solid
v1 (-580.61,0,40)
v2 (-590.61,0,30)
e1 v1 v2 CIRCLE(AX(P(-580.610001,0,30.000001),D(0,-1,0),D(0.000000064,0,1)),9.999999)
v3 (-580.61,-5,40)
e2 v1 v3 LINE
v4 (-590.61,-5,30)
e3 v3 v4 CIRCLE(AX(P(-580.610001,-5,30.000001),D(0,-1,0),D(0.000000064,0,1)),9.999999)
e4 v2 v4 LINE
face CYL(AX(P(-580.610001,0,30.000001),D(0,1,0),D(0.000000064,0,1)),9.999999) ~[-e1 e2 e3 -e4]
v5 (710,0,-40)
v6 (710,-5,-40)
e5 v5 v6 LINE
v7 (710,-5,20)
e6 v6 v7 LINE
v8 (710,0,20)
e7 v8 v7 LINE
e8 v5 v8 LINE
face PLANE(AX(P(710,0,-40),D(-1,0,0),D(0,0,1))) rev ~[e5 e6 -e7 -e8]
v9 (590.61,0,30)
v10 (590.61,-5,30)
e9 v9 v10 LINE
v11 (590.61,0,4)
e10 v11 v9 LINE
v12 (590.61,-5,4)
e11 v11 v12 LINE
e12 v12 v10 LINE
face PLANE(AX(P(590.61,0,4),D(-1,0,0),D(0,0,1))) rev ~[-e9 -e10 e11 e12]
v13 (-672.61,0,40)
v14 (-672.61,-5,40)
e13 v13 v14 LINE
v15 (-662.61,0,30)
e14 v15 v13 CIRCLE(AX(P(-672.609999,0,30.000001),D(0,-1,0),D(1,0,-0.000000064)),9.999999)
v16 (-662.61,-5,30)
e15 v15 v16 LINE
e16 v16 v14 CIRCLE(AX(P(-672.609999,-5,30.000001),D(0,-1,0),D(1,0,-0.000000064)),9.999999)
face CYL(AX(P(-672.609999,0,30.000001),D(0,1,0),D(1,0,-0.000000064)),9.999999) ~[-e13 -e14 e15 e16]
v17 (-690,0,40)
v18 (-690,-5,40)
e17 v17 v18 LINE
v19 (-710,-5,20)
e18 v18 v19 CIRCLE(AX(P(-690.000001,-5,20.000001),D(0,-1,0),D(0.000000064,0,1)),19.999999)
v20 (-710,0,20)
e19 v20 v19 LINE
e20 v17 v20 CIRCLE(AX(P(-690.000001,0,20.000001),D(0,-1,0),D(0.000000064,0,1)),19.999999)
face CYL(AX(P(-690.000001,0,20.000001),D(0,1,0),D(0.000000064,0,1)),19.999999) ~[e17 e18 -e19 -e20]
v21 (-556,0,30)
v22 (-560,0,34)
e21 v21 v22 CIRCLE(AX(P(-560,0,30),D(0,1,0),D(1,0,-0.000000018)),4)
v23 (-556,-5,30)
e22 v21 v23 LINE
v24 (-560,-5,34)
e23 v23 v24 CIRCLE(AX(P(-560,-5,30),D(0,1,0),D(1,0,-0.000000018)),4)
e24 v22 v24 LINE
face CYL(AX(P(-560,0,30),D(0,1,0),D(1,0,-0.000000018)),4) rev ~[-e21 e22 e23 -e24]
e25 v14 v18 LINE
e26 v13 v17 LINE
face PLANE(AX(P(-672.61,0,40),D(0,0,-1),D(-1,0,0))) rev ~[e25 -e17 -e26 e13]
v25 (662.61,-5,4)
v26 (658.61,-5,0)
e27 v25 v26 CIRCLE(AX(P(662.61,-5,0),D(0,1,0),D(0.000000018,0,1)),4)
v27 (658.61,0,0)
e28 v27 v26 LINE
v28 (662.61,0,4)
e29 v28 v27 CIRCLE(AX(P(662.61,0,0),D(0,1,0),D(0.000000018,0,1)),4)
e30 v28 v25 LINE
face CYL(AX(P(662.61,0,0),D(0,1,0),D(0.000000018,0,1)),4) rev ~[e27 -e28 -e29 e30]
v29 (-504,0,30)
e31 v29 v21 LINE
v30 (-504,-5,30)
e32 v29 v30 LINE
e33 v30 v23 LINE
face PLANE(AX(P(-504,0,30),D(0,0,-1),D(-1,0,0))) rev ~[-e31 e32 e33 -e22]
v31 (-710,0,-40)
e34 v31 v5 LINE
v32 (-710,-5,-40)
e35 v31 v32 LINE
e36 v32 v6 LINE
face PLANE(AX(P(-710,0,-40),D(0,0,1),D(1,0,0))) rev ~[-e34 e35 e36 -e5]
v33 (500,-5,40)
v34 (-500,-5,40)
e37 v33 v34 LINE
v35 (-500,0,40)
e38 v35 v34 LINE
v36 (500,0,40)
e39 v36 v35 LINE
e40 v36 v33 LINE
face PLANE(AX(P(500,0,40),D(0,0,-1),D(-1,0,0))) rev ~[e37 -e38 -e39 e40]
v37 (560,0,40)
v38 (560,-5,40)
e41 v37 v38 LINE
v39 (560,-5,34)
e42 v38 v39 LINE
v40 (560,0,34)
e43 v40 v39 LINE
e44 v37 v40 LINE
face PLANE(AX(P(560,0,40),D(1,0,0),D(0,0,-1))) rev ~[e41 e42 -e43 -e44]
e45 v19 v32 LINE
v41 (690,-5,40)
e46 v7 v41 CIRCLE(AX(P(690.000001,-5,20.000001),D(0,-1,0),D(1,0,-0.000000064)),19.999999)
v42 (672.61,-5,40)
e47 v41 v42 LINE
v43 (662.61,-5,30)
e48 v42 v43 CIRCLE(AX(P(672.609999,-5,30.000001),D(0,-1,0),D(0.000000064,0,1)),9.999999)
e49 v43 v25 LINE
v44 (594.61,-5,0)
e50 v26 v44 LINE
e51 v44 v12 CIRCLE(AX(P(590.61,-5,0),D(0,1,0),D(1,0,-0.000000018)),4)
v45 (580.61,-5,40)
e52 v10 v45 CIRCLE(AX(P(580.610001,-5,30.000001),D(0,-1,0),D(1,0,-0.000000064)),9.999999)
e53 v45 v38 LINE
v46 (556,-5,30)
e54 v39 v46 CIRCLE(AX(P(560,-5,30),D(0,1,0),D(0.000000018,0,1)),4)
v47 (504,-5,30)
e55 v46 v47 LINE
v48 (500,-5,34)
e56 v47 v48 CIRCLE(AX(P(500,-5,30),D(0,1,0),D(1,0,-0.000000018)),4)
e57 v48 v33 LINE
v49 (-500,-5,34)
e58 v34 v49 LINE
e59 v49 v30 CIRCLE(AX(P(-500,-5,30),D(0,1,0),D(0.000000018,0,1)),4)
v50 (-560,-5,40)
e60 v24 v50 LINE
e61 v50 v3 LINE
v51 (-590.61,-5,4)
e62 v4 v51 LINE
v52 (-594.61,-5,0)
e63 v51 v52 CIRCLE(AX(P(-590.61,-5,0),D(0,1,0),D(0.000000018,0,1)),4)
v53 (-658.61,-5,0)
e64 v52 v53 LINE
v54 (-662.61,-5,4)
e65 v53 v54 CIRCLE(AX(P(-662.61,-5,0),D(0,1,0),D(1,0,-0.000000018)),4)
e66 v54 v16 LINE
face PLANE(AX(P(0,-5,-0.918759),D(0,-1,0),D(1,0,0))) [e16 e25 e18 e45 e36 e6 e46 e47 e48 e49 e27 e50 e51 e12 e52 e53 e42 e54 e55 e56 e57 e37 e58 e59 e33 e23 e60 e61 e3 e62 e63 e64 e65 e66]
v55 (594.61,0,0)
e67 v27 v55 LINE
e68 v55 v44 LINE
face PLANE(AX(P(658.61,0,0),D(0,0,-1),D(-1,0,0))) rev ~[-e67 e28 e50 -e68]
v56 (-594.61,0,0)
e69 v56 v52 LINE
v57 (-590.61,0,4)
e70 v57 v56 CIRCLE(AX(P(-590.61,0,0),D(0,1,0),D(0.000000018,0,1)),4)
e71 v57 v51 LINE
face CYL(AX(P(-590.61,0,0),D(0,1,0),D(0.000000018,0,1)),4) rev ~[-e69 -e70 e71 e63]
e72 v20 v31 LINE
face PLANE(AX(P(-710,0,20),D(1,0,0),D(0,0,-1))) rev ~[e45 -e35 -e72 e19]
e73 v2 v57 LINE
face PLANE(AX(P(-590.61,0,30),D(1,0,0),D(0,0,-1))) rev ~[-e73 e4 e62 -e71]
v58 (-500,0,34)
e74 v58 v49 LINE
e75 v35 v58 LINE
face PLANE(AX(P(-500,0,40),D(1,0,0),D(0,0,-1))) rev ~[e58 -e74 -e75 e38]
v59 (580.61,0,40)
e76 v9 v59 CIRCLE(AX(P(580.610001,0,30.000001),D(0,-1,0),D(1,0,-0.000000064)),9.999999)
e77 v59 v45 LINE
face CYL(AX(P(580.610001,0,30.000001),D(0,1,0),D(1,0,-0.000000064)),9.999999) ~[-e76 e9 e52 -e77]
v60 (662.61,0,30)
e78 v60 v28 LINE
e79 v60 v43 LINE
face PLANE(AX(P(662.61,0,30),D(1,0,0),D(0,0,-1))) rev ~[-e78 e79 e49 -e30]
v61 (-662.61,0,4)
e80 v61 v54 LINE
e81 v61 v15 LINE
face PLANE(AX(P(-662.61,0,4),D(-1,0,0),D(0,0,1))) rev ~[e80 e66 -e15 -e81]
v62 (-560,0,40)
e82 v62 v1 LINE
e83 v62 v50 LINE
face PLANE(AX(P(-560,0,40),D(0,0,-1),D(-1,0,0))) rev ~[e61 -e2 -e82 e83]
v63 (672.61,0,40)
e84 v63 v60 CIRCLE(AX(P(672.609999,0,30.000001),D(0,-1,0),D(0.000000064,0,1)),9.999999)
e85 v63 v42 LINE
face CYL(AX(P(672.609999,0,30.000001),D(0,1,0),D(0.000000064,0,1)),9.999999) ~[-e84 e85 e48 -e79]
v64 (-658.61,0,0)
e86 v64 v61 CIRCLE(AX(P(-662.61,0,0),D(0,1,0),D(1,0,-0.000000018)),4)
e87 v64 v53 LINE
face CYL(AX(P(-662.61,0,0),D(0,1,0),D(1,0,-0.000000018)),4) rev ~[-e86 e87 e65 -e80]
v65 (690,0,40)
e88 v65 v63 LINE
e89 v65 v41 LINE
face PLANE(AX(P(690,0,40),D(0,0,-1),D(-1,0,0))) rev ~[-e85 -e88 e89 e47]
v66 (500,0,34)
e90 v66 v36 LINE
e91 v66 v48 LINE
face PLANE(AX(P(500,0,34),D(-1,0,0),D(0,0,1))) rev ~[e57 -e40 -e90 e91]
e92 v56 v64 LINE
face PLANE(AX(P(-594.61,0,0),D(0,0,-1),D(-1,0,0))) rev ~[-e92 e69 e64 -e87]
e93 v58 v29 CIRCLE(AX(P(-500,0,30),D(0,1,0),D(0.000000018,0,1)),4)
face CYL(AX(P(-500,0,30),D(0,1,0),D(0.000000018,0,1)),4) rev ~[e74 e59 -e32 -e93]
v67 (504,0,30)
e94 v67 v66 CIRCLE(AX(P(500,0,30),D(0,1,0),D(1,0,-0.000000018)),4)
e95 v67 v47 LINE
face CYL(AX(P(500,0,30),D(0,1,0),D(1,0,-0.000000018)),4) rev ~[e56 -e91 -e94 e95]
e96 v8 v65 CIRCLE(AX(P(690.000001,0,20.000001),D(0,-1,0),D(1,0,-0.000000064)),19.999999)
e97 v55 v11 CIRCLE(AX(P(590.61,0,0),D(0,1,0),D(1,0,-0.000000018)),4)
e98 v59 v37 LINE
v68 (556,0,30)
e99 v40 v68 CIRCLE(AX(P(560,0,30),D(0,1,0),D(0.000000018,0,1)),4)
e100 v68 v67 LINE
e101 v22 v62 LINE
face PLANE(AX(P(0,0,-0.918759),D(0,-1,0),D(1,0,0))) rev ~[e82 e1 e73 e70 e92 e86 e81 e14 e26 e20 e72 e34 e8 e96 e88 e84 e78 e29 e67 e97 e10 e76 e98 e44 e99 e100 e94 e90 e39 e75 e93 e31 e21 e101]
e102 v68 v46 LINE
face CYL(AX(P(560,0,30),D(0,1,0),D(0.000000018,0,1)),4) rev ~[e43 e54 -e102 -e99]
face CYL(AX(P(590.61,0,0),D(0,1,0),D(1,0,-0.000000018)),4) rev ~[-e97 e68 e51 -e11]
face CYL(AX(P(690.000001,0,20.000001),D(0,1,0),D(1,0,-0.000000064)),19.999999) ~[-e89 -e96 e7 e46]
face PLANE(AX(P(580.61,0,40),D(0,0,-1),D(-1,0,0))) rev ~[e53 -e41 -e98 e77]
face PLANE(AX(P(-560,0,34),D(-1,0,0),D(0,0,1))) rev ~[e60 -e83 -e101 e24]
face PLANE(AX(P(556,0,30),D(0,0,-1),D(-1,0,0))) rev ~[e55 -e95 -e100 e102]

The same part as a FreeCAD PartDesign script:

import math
import FreeCAD as App
import Part
import Sketcher
from FreeCAD import Vector

doc = App.newDocument("Part")
body = doc.addObject("PartDesign::Body", "Body")

sketch1 = doc.addObject("Sketcher::SketchObject", "Sketch")
body.addObject(sketch1)
sketch1.AttachmentSupport = (doc.XZ_Plane, [""])
sketch1.MapMode = "FlatFace"
sketch1.addGeometry([
    Part.LineSegment(Vector(-672.6, 40, 0), Vector(-690, 40, 0)),
    Part.ArcOfCircle(Part.Circle(Vector(-690, 20, 0), Vector(0, 0, 1), 20), math.radians(90), math.radians(180)),
    Part.LineSegment(Vector(-710, 20, 0), Vector(-710, -40, 0)),
    Part.LineSegment(Vector(-710, -40, 0), Vector(710, -40, 0)),
    Part.LineSegment(Vector(710, -40, 0), Vector(710, 20, 0)),
    Part.ArcOfCircle(Part.Circle(Vector(690, 20, 0), Vector(0, 0, 1), 20), math.radians(0), math.radians(90)),
    Part.LineSegment(Vector(690, 40, 0), Vector(672.6, 40, 0)),
    Part.ArcOfCircle(Part.Circle(Vector(672.6, 30, 0), Vector(0, 0, 1), 10), math.radians(90), math.radians(180)),
    Part.LineSegment(Vector(662.6, 30, 0), Vector(662.6, 4, 0)),
    Part.ArcOfCircle(Part.Circle(Vector(662.6, 0, 0), Vector(0, 0, 1), 4), math.radians(-180), math.radians(90)),
    Part.LineSegment(Vector(658.6, 0, 0), Vector(594.6, 0, 0)),
    Part.ArcOfCircle(Part.Circle(Vector(590.6, 0, 0), Vector(0, 0, 1), 4), math.radians(90), math.radians(360)),
    Part.LineSegment(Vector(590.6, 4, 0), Vector(590.6, 30, 0)),
    Part.ArcOfCircle(Part.Circle(Vector(580.6, 30, 0), Vector(0, 0, 1), 10), math.radians(0), math.radians(90)),
    Part.LineSegment(Vector(580.6, 40, 0), Vector(560, 40, 0)),
    Part.LineSegment(Vector(560, 40, 0), Vector(560, 34, 0)),
    Part.ArcOfCircle(Part.Circle(Vector(560, 30, 0), Vector(0, 0, 1), 4), math.radians(-180), math.radians(90)),
    Part.LineSegment(Vector(556, 30, 0), Vector(504, 30, 0)),
    Part.ArcOfCircle(Part.Circle(Vector(500, 30, 0), Vector(0, 0, 1), 4), math.radians(90), math.radians(360)),
    Part.LineSegment(Vector(500, 34, 0), Vector(500, 40, 0)),
    Part.LineSegment(Vector(500, 40, 0), Vector(-500, 40, 0)),
    Part.LineSegment(Vector(-500, 40, 0), Vector(-500, 34, 0)),
    Part.ArcOfCircle(Part.Circle(Vector(-500, 30, 0), Vector(0, 0, 1), 4), math.radians(-180), math.radians(90)),
    Part.LineSegment(Vector(-504, 30, 0), Vector(-556, 30, 0)),
    Part.ArcOfCircle(Part.Circle(Vector(-560, 30, 0), Vector(0, 0, 1), 4), math.radians(90), math.radians(360)),
    Part.LineSegment(Vector(-560, 34, 0), Vector(-560, 40, 0)),
    Part.LineSegment(Vector(-560, 40, 0), Vector(-580.6, 40, 0)),
    Part.ArcOfCircle(Part.Circle(Vector(-580.6, 30, 0), Vector(0, 0, 1), 10), math.radians(90), math.radians(180)),
    Part.LineSegment(Vector(-590.6, 30, 0), Vector(-590.6, 4, 0)),
    Part.ArcOfCircle(Part.Circle(Vector(-590.6, 0, 0), Vector(0, 0, 1), 4), math.radians(-180), math.radians(90)),
    Part.LineSegment(Vector(-594.6, 0, 0), Vector(-658.6, 0, 0)),
    Part.ArcOfCircle(Part.Circle(Vector(-662.6, 0, 0), Vector(0, 0, 1), 4), math.radians(90), math.radians(360)),
    Part.LineSegment(Vector(-662.6, 4, 0), Vector(-662.6, 30, 0)),
    Part.ArcOfCircle(Part.Circle(Vector(-672.6, 30, 0), Vector(0, 0, 1), 10), math.radians(0), math.radians(90)),
], False)
sketch1.addConstraint([
    Sketcher.Constraint("Tangent", 0, 2, 1, 1),
    Sketcher.Constraint("Tangent", 1, 2, 2, 1),
    Sketcher.Constraint("Coincident", 2, 2, 3, 1),
    Sketcher.Constraint("Coincident", 3, 2, 4, 1),
    Sketcher.Constraint("Tangent", 4, 2, 5, 1),
    Sketcher.Constraint("Tangent", 5, 2, 6, 1),
    Sketcher.Constraint("Tangent", 6, 2, 7, 1),
    Sketcher.Constraint("Tangent", 7, 2, 8, 1),
    Sketcher.Constraint("Coincident", 8, 2, 9, 2),
    Sketcher.Constraint("Coincident", 9, 1, 10, 1),
    Sketcher.Constraint("Coincident", 10, 2, 11, 2),
    Sketcher.Constraint("Coincident", 11, 1, 12, 1),
    Sketcher.Constraint("Tangent", 12, 2, 13, 1),
    Sketcher.Constraint("Tangent", 13, 2, 14, 1),
    Sketcher.Constraint("Coincident", 14, 2, 15, 1),
    Sketcher.Constraint("Coincident", 15, 2, 16, 2),
    Sketcher.Constraint("Coincident", 16, 1, 17, 1),
    Sketcher.Constraint("Coincident", 17, 2, 18, 2),
    Sketcher.Constraint("Coincident", 18, 1, 19, 1),
    Sketcher.Constraint("Coincident", 19, 2, 20, 1),
    Sketcher.Constraint("Coincident", 20, 2, 21, 1),
    Sketcher.Constraint("Coincident", 21, 2, 22, 2),
    Sketcher.Constraint("Coincident", 22, 1, 23, 1),
    Sketcher.Constraint("Coincident", 23, 2, 24, 2),
    Sketcher.Constraint("Coincident", 24, 1, 25, 1),
    Sketcher.Constraint("Coincident", 25, 2, 26, 1),
    Sketcher.Constraint("Tangent", 26, 2, 27, 1),
    Sketcher.Constraint("Tangent", 27, 2, 28, 1),
    Sketcher.Constraint("Coincident", 28, 2, 29, 2),
    Sketcher.Constraint("Coincident", 29, 1, 30, 1),
    Sketcher.Constraint("Coincident", 30, 2, 31, 2),
    Sketcher.Constraint("Coincident", 31, 1, 32, 1),
    Sketcher.Constraint("Tangent", 32, 2, 33, 1),
    Sketcher.Constraint("Tangent", 33, 2, 0, 1),
    Sketcher.Constraint("Horizontal", 0),
    Sketcher.Constraint("Vertical", 2),
    Sketcher.Constraint("Horizontal", 3),
    Sketcher.Constraint("Vertical", 4),
    Sketcher.Constraint("Horizontal", 6),
    Sketcher.Constraint("Vertical", 8),
    Sketcher.Constraint("Horizontal", 10),
    Sketcher.Constraint("Vertical", 12),
    Sketcher.Constraint("Horizontal", 14),
    Sketcher.Constraint("Vertical", 15),
    Sketcher.Constraint("Horizontal", 17),
    Sketcher.Constraint("Vertical", 19),
    Sketcher.Constraint("Horizontal", 20),
    Sketcher.Constraint("Vertical", 21),
    Sketcher.Constraint("Horizontal", 23),
    Sketcher.Constraint("Vertical", 25),
    Sketcher.Constraint("Horizontal", 26),
    Sketcher.Constraint("Vertical", 28),
    Sketcher.Constraint("Horizontal", 30),
    Sketcher.Constraint("Vertical", 32),
    Sketcher.Constraint("Equal", 1, 5),
    Sketcher.Constraint("Equal", 9, 11),
    Sketcher.Constraint("Equal", 7, 13),
    Sketcher.Constraint("Equal", 11, 16),
    Sketcher.Constraint("Equal", 16, 18),
    Sketcher.Constraint("Equal", 18, 22),
    Sketcher.Constraint("Equal", 22, 24),
    Sketcher.Constraint("Equal", 13, 27),
    Sketcher.Constraint("Equal", 24, 29),
    Sketcher.Constraint("Equal", 29, 31),
    Sketcher.Constraint("Equal", 27, 33),
    Sketcher.Constraint("Symmetric", 11, 3, 29, 3, -1, 1),
    Sketcher.Constraint("Symmetric", 9, 3, 31, 3, -1, 1),
    Sketcher.Constraint("Symmetric", 1, 3, 5, 3, -2),
    Sketcher.Constraint("Symmetric", 18, 3, 22, 3, -2),
    Sketcher.Constraint("Symmetric", 16, 3, 24, 3, -2),
    Sketcher.Constraint("Symmetric", 13, 3, 27, 3, -2),
    Sketcher.Constraint("Symmetric", 8, 2, 31, 1, -2),
    Sketcher.Constraint("PointOnObject", 11, 3, -1),
    Sketcher.Constraint("PointOnObject", 9, 1, -1),
    Sketcher.Constraint("PointOnObject", 29, 1, -1),
    Sketcher.Constraint("Horizontal", 7, 3, 13, 3),
    Sketcher.Constraint("Horizontal", 13, 3, 16, 3),
    Sketcher.Constraint("Horizontal", 16, 3, 18, 3),
    Sketcher.Constraint("Horizontal", 12, 2, 16, 1),
    Sketcher.Constraint("Horizontal", 14, 2, 19, 2),
    Sketcher.Constraint("Horizontal", 17, 2, 22, 1),
    Sketcher.Constraint("Vertical", 9, 3, 7, 2),
    Sketcher.Constraint("Vertical", 16, 3, 14, 2),
    Sketcher.Constraint("Vertical", 22, 3, 20, 2),
    Sketcher.Constraint("Vertical", 29, 3, 27, 2),
    Sketcher.Constraint("Equal", 14, 26),
    Sketcher.Constraint("Radius", 1, 19.999999),
    Sketcher.Constraint("Radius", 7, 9.999999),
    Sketcher.Constraint("Radius", 9, 4.0),
    Sketcher.Constraint("DistanceX", 3, 1, 3, 2, 1420.0),
    Sketcher.Constraint("DistanceX", 10, 2, 10, 1, 64.0),
    Sketcher.Constraint("DistanceX", 17, 2, 17, 1, 52.0),
    Sketcher.Constraint("DistanceX", 20, 2, 20, 1, 1000.0),
    Sketcher.Constraint("DistanceY", 2, 2, 2, 1, 60.0),
    Sketcher.Constraint("DistanceY", 8, 2, 8, 1, 26.0),
    Sketcher.Constraint("DistanceX", -1, 1, 16, 3, 560.0),
    Sketcher.Constraint("DistanceX", 0, 2, 0, 1, 17.39),
])
pad1 = doc.addObject("PartDesign::Pad", "Pad")
body.addObject(pad1)
pad1.Profile = sketch1
pad1.Length = 5

doc.recompute()
